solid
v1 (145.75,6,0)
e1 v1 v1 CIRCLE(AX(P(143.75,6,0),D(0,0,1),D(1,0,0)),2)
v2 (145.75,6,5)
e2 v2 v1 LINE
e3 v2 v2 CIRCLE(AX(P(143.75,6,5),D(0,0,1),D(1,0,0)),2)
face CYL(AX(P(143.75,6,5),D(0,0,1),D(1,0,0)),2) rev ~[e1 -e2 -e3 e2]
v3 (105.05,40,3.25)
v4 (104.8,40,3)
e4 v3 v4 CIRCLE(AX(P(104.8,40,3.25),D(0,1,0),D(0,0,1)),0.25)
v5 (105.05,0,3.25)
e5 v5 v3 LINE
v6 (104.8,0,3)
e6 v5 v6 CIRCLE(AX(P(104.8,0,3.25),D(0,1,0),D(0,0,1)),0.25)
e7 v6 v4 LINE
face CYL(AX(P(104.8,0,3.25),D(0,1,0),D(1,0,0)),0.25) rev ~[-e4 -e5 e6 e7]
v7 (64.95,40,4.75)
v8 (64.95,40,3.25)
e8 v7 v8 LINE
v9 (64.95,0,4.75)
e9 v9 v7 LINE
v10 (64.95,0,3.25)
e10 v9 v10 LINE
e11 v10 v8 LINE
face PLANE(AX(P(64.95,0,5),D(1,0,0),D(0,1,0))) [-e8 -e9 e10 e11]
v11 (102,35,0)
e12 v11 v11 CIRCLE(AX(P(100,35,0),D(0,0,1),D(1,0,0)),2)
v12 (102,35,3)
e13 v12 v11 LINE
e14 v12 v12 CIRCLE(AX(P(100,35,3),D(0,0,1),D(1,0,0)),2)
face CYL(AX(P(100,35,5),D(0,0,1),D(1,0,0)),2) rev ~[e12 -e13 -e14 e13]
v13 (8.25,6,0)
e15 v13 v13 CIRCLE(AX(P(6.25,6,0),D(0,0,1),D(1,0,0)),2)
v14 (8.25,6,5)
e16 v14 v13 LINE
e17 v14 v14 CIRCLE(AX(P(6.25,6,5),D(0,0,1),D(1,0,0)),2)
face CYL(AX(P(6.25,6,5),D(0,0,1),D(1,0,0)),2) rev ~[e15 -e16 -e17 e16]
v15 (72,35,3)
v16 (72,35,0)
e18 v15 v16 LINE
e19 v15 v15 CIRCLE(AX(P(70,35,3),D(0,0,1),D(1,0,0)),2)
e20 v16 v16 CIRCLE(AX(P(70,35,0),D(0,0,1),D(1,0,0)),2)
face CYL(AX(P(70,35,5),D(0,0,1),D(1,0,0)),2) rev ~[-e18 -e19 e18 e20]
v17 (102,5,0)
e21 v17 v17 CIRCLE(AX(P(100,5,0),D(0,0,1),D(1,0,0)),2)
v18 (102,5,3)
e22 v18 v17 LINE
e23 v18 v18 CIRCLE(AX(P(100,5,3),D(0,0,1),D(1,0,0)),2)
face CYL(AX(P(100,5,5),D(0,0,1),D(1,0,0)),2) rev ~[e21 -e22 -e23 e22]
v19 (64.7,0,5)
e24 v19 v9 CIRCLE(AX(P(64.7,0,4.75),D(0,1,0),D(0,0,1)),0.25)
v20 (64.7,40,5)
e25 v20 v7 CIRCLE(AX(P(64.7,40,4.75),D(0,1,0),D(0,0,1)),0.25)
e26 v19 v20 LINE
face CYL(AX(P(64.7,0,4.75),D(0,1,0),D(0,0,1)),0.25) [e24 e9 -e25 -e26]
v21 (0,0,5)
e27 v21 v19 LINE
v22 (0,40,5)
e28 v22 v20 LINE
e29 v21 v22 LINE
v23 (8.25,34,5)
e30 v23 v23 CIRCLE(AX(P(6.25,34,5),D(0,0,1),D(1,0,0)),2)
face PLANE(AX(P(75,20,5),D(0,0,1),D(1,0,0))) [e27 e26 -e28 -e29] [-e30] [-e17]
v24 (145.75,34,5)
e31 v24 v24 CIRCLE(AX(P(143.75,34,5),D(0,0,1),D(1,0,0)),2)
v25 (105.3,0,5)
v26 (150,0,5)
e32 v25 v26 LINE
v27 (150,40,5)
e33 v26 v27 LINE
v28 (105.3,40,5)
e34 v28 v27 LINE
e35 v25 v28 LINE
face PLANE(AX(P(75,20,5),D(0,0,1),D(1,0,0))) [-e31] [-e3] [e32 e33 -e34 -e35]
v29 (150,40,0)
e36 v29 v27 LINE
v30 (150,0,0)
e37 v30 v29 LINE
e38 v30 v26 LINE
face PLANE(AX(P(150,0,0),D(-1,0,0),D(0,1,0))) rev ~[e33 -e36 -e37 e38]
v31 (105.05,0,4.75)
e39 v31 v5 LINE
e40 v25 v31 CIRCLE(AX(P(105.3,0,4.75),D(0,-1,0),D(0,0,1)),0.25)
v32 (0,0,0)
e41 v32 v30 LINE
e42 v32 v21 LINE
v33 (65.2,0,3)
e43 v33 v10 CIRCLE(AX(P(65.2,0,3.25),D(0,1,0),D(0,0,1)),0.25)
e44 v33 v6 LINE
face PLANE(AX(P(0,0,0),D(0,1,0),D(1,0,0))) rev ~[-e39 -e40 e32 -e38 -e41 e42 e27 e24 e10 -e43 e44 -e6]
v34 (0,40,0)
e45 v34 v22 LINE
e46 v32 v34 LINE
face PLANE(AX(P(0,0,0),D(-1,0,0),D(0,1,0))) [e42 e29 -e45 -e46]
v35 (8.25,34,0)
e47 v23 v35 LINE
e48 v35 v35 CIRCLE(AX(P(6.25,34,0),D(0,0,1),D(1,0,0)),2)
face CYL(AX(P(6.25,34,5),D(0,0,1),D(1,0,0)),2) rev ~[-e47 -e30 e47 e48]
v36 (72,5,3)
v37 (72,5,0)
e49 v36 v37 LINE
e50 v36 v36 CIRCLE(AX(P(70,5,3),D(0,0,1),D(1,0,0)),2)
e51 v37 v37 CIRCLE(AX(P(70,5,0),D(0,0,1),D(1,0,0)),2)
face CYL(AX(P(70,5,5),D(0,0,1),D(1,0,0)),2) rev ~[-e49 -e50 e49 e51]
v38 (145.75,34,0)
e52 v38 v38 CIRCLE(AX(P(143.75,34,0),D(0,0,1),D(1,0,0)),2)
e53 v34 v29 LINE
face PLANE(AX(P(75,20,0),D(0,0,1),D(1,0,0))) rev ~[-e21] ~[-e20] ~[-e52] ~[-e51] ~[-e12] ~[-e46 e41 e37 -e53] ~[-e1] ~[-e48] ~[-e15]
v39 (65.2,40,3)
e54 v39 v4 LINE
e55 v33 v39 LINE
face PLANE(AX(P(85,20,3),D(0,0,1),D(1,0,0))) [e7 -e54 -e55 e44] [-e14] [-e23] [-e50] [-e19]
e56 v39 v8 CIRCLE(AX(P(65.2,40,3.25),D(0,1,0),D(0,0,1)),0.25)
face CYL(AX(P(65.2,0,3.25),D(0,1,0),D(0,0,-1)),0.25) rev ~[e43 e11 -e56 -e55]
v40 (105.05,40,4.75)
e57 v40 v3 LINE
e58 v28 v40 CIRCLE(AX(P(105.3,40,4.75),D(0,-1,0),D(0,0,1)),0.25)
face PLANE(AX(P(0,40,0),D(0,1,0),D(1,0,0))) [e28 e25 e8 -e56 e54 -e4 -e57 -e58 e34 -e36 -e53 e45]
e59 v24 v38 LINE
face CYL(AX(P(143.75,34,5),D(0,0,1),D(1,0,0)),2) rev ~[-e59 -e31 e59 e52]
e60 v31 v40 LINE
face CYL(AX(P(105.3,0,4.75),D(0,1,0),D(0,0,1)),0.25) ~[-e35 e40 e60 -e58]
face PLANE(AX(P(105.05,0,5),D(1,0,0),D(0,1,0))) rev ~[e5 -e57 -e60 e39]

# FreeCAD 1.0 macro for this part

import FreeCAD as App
import Part
import Sketcher

V = App.Vector


def edges_at(feature, points):
    """Names of the edges that pass closest to the given points."""
    edges = feature.Shape.Edges
    near = lambda p: min(range(len(edges)), key=lambda i: edges[i].distToShape(Part.Vertex(*p))[0])
    return sorted({f"Edge{near(p) + 1}" for p in points})


def add_polygon(sketch, points):
    """Adds a closed chain of lines whose ends are joined by coincident constraints."""
    first, n = sketch.GeometryCount, len(points)
    for a, b in zip(points, points[1:] + points[:1]):
        sketch.addGeometry(Part.LineSegment(App.Vector(*a, 0), App.Vector(*b, 0)), False)
    for i in range(n):
        sketch.addConstraint(Sketcher.Constraint("Coincident", first + i, 2, first + (i + 1) % n, 1))

doc = App.newDocument("Part")
params = doc.addObject("Spreadsheet::Sheet", "Params")
for row, (alias, value) in enumerate([
    ("sketch1_width", "150 mm"),
    ("sketch1_height", "40 mm"),
    ("pad1_length", "5 mm"),
    ("sketch2_diameter", "4 mm"),
    ("pocket1_length", "25 mm"),
    ("sketch3_diameter", "4 mm"),
    ("pocket2_length", "25 mm"),
    ("sketch4_height", "40 mm"),
    ("sketch4_width", "40.1 mm"),
    ("pocket3_length", "2 mm"),
    ("fillet_radius", "0.25 mm"),
], start=1):
    params.set(f"A{row}", alias)
    params.set(f"B{row}", "=" + value)
    params.setAlias(f"B{row}", alias)

body = doc.addObject("PartDesign::Body", "Body")

# Sketch on XY plane
sketch1 = doc.addObject("Sketcher::SketchObject", "Sketch")
body.addObject(sketch1)
sketch1.AttachmentSupport = (doc.XY_Plane, [""])
sketch1.MapMode = "FlatFace"
add_polygon(sketch1, [(0, 40), (0, 0), (150, 0), (150, 40)])  # lines 0-3
sketch1.addConstraint(Sketcher.Constraint("Vertical", 0))
sketch1.addConstraint(Sketcher.Constraint("Horizontal", 1))
sketch1.addConstraint(Sketcher.Constraint("Vertical", 2))
sketch1.addConstraint(Sketcher.Constraint("Horizontal", 3))
sketch1.addConstraint(Sketcher.Constraint("Coincident", 0, 2, -1, 1))
sketch1.addConstraint(Sketcher.Constraint("DistanceX", 1, 1, 1, 2, 150.0))
sketch1.addConstraint(Sketcher.Constraint("DistanceY", 0, 2, 0, 1, 40.0))
sketch1.setExpression("Constraints[9]", "Params.sketch1_width")
sketch1.setExpression("Constraints[10]", "Params.sketch1_height")
pad1 = doc.addObject("PartDesign::Pad", "Pad")
body.addObject(pad1)
pad1.Profile = sketch1
pad1.setExpression("Length", "Params.pad1_length")

# Sketch on XY plane
sketch2 = doc.addObject("Sketcher::SketchObject", "Sketch001")
body.addObject(sketch2)
sketch2.AttachmentSupport = (doc.XY_Plane, [""])
sketch2.MapMode = "FlatFace"
sketch2.AttachmentOffset = App.Placement(V(0, 0, 5), App.Rotation())
sketch2.addGeometry(Part.Circle(V(6.2, 34, 0), V(0, 0, 1), 2), False)
sketch2.addGeometry(Part.Circle(V(6.2, 6, 0), V(0, 0, 1), 2), False)
sketch2.addGeometry(Part.Circle(V(143.8, 34, 0), V(0, 0, 1), 2), False)
sketch2.addGeometry(Part.Circle(V(143.8, 6, 0), V(0, 0, 1), 2), False)
sketch2.addConstraint(Sketcher.Constraint("Equal", 0, 1))
sketch2.addConstraint(Sketcher.Constraint("Equal", 1, 2))
sketch2.addConstraint(Sketcher.Constraint("Equal", 2, 3))
sketch2.addConstraint(Sketcher.Constraint("Horizontal", 0, 3, 2, 3))
sketch2.addConstraint(Sketcher.Constraint("Horizontal", 1, 3, 3, 3))
sketch2.addConstraint(Sketcher.Constraint("Vertical", 0, 3, 1, 3))
sketch2.addConstraint(Sketcher.Constraint("Vertical", 2, 3, 3, 3))
sketch2.addConstraint(Sketcher.Constraint("Diameter", 0, 4.0))
sketch2.addConstraint(Sketcher.Constraint("DistanceY", -1, 1, 0, 3, 34.0))
sketch2.addConstraint(Sketcher.Constraint("DistanceY", -1, 1, 1, 3, 6.0))
sketch2.addConstraint(Sketcher.Constraint("DistanceX", 0, 3, 2, 3, 137.5))
sketch2.addConstraint(Sketcher.Constraint("DistanceX", -1, 1, 0, 3, 6.25))
sketch2.setExpression("Constraints[7]", "Params.sketch2_diameter")
pocket1 = doc.addObject("PartDesign::Pocket", "Pocket")
body.addObject(pocket1)
pocket1.Profile = sketch2
pocket1.setExpression("Length", "Params.pocket1_length")

# Sketch on XY plane
sketch3 = doc.addObject("Sketcher::SketchObject", "Sketch002")
body.addObject(sketch3)
sketch3.AttachmentSupport = (doc.XY_Plane, [""])
sketch3.MapMode = "FlatFace"
sketch3.AttachmentOffset = App.Placement(V(0, 0, 5), App.Rotation())
sketch3.addGeometry(Part.Circle(V(70, 35, 0), V(0, 0, 1), 2), False)
sketch3.addGeometry(Part.Circle(V(70, 5, 0), V(0, 0, 1), 2), False)
sketch3.addGeometry(Part.Circle(V(100, 35, 0), V(0, 0, 1), 2), False)
sketch3.addGeometry(Part.Circle(V(100, 5, 0), V(0, 0, 1), 2), False)
sketch3.addConstraint(Sketcher.Constraint("Equal", 0, 1))
sketch3.addConstraint(Sketcher.Constraint("Equal", 1, 2))
sketch3.addConstraint(Sketcher.Constraint("Equal", 2, 3))
sketch3.addConstraint(Sketcher.Constraint("Horizontal", 0, 3, 2, 3))
sketch3.addConstraint(Sketcher.Constraint("Horizontal", 1, 3, 3, 3))
sketch3.addConstraint(Sketcher.Constraint("Vertical", 0, 3, 1, 3))
sketch3.addConstraint(Sketcher.Constraint("Vertical", 2, 3, 3, 3))
sketch3.addConstraint(Sketcher.Constraint("Diameter", 0, 4.0))
sketch3.addConstraint(Sketcher.Constraint("DistanceX", -1, 1, 0, 3, 70.0))
sketch3.addConstraint(Sketcher.Constraint("DistanceY", -1, 1, 0, 3, 35.0))
sketch3.addConstraint(Sketcher.Constraint("DistanceY", -1, 1, 1, 3, 5.0))
sketch3.addConstraint(Sketcher.Constraint("DistanceX", -1, 1, 2, 3, 100.0))
sketch3.setExpression("Constraints[7]", "Params.sketch3_diameter")
pocket2 = doc.addObject("PartDesign::Pocket", "Pocket001")
body.addObject(pocket2)
pocket2.Profile = sketch3
pocket2.setExpression("Length", "Params.pocket2_length")

# Sketch on XY plane
sketch4 = doc.addObject("Sketcher::SketchObject", "Sketch003")
body.addObject(sketch4)
sketch4.AttachmentSupport = (doc.XY_Plane, [""])
sketch4.MapMode = "FlatFace"
sketch4.AttachmentOffset = App.Placement(V(0, 0, 5), App.Rotation())
add_polygon(sketch4, [(65, 40), (65, 0), (105, 0), (105, 40)])  # lines 0-3
sketch4.addConstraint(Sketcher.Constraint("Vertical", 0))
sketch4.addConstraint(Sketcher.Constraint("Horizontal", 1))
sketch4.addConstraint(Sketcher.Constraint("Vertical", 2))
sketch4.addConstraint(Sketcher.Constraint("Horizontal", 3))
sketch4.addConstraint(Sketcher.Constraint("PointOnObject", 0, 2, -1))
sketch4.addConstraint(Sketcher.Constraint("DistanceY", 0, 2, 0, 1, 40.0))
sketch4.addConstraint(Sketcher.Constraint("DistanceX", 1, 1, 1, 2, 40.1))
sketch4.addConstraint(Sketcher.Constraint("DistanceX", -1, 1, 0, 2, 64.95))
sketch4.setExpression("Constraints[9]", "Params.sketch4_height")
sketch4.setExpression("Constraints[10]", "Params.sketch4_width")
pocket3 = doc.addObject("PartDesign::Pocket", "Pocket002")
body.addObject(pocket3)
pocket3.Profile = sketch4
pocket3.setExpression("Length", "Params.pocket3_length")
doc.recompute()

fillet = doc.addObject("PartDesign::Fillet", "Fillet")
body.addObject(fillet)
fillet.Base = (pocket3, edges_at(pocket3, [
    (64.95, 20, 5),
    (64.95, 20, 3),
    (105.05, 20, 5),
    (105.05, 20, 3),
]))
fillet.setExpression("Radius", "Params.fillet_radius")

doc.recompute()
